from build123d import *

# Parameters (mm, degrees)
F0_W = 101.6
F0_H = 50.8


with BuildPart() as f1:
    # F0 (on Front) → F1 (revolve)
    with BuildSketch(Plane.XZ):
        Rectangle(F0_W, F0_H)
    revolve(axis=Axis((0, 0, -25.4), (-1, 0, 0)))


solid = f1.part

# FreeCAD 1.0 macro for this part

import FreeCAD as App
import Part
import Sketcher
from FreeCAD import Vector
Q = App.Units.Quantity


def add_polygon(sketch, points):
    """Adds a closed chain of lines whose ends are joined by coincident constraints."""
    first, n = sketch.GeometryCount, len(points)
    for a, b in zip(points, points[1:] + points[:1]):
        sketch.addGeometry(Part.LineSegment(App.Vector(*a, 0), App.Vector(*b, 0)), False)
    for i in range(n):
        sketch.addConstraint(Sketcher.Constraint("Coincident", first + i, 2, first + (i + 1) % n, 1))

doc = App.newDocument("Part")
body = doc.addObject("PartDesign::Body", "Body")

# Sketch on XZ plane
sketch1 = body.newObject("Sketcher::SketchObject", "Sketch")
sketch1.AttachmentSupport = (doc.getObject("XZ_Plane"), [""])
sketch1.MapMode = "FlatFace"
add_polygon(sketch1, [(-51, 25), (-51, -25), (51, -25), (51, 25)])  # lines 0-3
sketch1.addGeometry(Part.LineSegment(Vector(51, -25, 0), Vector(-51, -25, 0)), True)  # axis
sketch1.addConstraint([
    Sketcher.Constraint("Vertical", 0),
    Sketcher.Constraint("Horizontal", 1),
    Sketcher.Constraint("Vertical", 2),
    Sketcher.Constraint("Horizontal", 3),
    Sketcher.Constraint("Horizontal", 4),
    Sketcher.Constraint("Coincident", 4, 1, 1, 2),
    Sketcher.Constraint("Symmetric", 0, 2, 2, 2, -1, 1),
    Sketcher.Constraint("Vertical", 3, 2, 4, 2),
    Sketcher.Constraint("DistanceX", 1, 1, 1, 2, Q("4 in")),
    Sketcher.Constraint("DistanceY", 0, 2, 0, 1, Q("2 in")),
])
revolution = body.newObject("PartDesign::Revolution", "Revolution")
revolution.Profile = sketch1
revolution.ReferenceAxis = (sketch1, ["Axis0"])
revolution.Angle = 360

doc.recompute()
